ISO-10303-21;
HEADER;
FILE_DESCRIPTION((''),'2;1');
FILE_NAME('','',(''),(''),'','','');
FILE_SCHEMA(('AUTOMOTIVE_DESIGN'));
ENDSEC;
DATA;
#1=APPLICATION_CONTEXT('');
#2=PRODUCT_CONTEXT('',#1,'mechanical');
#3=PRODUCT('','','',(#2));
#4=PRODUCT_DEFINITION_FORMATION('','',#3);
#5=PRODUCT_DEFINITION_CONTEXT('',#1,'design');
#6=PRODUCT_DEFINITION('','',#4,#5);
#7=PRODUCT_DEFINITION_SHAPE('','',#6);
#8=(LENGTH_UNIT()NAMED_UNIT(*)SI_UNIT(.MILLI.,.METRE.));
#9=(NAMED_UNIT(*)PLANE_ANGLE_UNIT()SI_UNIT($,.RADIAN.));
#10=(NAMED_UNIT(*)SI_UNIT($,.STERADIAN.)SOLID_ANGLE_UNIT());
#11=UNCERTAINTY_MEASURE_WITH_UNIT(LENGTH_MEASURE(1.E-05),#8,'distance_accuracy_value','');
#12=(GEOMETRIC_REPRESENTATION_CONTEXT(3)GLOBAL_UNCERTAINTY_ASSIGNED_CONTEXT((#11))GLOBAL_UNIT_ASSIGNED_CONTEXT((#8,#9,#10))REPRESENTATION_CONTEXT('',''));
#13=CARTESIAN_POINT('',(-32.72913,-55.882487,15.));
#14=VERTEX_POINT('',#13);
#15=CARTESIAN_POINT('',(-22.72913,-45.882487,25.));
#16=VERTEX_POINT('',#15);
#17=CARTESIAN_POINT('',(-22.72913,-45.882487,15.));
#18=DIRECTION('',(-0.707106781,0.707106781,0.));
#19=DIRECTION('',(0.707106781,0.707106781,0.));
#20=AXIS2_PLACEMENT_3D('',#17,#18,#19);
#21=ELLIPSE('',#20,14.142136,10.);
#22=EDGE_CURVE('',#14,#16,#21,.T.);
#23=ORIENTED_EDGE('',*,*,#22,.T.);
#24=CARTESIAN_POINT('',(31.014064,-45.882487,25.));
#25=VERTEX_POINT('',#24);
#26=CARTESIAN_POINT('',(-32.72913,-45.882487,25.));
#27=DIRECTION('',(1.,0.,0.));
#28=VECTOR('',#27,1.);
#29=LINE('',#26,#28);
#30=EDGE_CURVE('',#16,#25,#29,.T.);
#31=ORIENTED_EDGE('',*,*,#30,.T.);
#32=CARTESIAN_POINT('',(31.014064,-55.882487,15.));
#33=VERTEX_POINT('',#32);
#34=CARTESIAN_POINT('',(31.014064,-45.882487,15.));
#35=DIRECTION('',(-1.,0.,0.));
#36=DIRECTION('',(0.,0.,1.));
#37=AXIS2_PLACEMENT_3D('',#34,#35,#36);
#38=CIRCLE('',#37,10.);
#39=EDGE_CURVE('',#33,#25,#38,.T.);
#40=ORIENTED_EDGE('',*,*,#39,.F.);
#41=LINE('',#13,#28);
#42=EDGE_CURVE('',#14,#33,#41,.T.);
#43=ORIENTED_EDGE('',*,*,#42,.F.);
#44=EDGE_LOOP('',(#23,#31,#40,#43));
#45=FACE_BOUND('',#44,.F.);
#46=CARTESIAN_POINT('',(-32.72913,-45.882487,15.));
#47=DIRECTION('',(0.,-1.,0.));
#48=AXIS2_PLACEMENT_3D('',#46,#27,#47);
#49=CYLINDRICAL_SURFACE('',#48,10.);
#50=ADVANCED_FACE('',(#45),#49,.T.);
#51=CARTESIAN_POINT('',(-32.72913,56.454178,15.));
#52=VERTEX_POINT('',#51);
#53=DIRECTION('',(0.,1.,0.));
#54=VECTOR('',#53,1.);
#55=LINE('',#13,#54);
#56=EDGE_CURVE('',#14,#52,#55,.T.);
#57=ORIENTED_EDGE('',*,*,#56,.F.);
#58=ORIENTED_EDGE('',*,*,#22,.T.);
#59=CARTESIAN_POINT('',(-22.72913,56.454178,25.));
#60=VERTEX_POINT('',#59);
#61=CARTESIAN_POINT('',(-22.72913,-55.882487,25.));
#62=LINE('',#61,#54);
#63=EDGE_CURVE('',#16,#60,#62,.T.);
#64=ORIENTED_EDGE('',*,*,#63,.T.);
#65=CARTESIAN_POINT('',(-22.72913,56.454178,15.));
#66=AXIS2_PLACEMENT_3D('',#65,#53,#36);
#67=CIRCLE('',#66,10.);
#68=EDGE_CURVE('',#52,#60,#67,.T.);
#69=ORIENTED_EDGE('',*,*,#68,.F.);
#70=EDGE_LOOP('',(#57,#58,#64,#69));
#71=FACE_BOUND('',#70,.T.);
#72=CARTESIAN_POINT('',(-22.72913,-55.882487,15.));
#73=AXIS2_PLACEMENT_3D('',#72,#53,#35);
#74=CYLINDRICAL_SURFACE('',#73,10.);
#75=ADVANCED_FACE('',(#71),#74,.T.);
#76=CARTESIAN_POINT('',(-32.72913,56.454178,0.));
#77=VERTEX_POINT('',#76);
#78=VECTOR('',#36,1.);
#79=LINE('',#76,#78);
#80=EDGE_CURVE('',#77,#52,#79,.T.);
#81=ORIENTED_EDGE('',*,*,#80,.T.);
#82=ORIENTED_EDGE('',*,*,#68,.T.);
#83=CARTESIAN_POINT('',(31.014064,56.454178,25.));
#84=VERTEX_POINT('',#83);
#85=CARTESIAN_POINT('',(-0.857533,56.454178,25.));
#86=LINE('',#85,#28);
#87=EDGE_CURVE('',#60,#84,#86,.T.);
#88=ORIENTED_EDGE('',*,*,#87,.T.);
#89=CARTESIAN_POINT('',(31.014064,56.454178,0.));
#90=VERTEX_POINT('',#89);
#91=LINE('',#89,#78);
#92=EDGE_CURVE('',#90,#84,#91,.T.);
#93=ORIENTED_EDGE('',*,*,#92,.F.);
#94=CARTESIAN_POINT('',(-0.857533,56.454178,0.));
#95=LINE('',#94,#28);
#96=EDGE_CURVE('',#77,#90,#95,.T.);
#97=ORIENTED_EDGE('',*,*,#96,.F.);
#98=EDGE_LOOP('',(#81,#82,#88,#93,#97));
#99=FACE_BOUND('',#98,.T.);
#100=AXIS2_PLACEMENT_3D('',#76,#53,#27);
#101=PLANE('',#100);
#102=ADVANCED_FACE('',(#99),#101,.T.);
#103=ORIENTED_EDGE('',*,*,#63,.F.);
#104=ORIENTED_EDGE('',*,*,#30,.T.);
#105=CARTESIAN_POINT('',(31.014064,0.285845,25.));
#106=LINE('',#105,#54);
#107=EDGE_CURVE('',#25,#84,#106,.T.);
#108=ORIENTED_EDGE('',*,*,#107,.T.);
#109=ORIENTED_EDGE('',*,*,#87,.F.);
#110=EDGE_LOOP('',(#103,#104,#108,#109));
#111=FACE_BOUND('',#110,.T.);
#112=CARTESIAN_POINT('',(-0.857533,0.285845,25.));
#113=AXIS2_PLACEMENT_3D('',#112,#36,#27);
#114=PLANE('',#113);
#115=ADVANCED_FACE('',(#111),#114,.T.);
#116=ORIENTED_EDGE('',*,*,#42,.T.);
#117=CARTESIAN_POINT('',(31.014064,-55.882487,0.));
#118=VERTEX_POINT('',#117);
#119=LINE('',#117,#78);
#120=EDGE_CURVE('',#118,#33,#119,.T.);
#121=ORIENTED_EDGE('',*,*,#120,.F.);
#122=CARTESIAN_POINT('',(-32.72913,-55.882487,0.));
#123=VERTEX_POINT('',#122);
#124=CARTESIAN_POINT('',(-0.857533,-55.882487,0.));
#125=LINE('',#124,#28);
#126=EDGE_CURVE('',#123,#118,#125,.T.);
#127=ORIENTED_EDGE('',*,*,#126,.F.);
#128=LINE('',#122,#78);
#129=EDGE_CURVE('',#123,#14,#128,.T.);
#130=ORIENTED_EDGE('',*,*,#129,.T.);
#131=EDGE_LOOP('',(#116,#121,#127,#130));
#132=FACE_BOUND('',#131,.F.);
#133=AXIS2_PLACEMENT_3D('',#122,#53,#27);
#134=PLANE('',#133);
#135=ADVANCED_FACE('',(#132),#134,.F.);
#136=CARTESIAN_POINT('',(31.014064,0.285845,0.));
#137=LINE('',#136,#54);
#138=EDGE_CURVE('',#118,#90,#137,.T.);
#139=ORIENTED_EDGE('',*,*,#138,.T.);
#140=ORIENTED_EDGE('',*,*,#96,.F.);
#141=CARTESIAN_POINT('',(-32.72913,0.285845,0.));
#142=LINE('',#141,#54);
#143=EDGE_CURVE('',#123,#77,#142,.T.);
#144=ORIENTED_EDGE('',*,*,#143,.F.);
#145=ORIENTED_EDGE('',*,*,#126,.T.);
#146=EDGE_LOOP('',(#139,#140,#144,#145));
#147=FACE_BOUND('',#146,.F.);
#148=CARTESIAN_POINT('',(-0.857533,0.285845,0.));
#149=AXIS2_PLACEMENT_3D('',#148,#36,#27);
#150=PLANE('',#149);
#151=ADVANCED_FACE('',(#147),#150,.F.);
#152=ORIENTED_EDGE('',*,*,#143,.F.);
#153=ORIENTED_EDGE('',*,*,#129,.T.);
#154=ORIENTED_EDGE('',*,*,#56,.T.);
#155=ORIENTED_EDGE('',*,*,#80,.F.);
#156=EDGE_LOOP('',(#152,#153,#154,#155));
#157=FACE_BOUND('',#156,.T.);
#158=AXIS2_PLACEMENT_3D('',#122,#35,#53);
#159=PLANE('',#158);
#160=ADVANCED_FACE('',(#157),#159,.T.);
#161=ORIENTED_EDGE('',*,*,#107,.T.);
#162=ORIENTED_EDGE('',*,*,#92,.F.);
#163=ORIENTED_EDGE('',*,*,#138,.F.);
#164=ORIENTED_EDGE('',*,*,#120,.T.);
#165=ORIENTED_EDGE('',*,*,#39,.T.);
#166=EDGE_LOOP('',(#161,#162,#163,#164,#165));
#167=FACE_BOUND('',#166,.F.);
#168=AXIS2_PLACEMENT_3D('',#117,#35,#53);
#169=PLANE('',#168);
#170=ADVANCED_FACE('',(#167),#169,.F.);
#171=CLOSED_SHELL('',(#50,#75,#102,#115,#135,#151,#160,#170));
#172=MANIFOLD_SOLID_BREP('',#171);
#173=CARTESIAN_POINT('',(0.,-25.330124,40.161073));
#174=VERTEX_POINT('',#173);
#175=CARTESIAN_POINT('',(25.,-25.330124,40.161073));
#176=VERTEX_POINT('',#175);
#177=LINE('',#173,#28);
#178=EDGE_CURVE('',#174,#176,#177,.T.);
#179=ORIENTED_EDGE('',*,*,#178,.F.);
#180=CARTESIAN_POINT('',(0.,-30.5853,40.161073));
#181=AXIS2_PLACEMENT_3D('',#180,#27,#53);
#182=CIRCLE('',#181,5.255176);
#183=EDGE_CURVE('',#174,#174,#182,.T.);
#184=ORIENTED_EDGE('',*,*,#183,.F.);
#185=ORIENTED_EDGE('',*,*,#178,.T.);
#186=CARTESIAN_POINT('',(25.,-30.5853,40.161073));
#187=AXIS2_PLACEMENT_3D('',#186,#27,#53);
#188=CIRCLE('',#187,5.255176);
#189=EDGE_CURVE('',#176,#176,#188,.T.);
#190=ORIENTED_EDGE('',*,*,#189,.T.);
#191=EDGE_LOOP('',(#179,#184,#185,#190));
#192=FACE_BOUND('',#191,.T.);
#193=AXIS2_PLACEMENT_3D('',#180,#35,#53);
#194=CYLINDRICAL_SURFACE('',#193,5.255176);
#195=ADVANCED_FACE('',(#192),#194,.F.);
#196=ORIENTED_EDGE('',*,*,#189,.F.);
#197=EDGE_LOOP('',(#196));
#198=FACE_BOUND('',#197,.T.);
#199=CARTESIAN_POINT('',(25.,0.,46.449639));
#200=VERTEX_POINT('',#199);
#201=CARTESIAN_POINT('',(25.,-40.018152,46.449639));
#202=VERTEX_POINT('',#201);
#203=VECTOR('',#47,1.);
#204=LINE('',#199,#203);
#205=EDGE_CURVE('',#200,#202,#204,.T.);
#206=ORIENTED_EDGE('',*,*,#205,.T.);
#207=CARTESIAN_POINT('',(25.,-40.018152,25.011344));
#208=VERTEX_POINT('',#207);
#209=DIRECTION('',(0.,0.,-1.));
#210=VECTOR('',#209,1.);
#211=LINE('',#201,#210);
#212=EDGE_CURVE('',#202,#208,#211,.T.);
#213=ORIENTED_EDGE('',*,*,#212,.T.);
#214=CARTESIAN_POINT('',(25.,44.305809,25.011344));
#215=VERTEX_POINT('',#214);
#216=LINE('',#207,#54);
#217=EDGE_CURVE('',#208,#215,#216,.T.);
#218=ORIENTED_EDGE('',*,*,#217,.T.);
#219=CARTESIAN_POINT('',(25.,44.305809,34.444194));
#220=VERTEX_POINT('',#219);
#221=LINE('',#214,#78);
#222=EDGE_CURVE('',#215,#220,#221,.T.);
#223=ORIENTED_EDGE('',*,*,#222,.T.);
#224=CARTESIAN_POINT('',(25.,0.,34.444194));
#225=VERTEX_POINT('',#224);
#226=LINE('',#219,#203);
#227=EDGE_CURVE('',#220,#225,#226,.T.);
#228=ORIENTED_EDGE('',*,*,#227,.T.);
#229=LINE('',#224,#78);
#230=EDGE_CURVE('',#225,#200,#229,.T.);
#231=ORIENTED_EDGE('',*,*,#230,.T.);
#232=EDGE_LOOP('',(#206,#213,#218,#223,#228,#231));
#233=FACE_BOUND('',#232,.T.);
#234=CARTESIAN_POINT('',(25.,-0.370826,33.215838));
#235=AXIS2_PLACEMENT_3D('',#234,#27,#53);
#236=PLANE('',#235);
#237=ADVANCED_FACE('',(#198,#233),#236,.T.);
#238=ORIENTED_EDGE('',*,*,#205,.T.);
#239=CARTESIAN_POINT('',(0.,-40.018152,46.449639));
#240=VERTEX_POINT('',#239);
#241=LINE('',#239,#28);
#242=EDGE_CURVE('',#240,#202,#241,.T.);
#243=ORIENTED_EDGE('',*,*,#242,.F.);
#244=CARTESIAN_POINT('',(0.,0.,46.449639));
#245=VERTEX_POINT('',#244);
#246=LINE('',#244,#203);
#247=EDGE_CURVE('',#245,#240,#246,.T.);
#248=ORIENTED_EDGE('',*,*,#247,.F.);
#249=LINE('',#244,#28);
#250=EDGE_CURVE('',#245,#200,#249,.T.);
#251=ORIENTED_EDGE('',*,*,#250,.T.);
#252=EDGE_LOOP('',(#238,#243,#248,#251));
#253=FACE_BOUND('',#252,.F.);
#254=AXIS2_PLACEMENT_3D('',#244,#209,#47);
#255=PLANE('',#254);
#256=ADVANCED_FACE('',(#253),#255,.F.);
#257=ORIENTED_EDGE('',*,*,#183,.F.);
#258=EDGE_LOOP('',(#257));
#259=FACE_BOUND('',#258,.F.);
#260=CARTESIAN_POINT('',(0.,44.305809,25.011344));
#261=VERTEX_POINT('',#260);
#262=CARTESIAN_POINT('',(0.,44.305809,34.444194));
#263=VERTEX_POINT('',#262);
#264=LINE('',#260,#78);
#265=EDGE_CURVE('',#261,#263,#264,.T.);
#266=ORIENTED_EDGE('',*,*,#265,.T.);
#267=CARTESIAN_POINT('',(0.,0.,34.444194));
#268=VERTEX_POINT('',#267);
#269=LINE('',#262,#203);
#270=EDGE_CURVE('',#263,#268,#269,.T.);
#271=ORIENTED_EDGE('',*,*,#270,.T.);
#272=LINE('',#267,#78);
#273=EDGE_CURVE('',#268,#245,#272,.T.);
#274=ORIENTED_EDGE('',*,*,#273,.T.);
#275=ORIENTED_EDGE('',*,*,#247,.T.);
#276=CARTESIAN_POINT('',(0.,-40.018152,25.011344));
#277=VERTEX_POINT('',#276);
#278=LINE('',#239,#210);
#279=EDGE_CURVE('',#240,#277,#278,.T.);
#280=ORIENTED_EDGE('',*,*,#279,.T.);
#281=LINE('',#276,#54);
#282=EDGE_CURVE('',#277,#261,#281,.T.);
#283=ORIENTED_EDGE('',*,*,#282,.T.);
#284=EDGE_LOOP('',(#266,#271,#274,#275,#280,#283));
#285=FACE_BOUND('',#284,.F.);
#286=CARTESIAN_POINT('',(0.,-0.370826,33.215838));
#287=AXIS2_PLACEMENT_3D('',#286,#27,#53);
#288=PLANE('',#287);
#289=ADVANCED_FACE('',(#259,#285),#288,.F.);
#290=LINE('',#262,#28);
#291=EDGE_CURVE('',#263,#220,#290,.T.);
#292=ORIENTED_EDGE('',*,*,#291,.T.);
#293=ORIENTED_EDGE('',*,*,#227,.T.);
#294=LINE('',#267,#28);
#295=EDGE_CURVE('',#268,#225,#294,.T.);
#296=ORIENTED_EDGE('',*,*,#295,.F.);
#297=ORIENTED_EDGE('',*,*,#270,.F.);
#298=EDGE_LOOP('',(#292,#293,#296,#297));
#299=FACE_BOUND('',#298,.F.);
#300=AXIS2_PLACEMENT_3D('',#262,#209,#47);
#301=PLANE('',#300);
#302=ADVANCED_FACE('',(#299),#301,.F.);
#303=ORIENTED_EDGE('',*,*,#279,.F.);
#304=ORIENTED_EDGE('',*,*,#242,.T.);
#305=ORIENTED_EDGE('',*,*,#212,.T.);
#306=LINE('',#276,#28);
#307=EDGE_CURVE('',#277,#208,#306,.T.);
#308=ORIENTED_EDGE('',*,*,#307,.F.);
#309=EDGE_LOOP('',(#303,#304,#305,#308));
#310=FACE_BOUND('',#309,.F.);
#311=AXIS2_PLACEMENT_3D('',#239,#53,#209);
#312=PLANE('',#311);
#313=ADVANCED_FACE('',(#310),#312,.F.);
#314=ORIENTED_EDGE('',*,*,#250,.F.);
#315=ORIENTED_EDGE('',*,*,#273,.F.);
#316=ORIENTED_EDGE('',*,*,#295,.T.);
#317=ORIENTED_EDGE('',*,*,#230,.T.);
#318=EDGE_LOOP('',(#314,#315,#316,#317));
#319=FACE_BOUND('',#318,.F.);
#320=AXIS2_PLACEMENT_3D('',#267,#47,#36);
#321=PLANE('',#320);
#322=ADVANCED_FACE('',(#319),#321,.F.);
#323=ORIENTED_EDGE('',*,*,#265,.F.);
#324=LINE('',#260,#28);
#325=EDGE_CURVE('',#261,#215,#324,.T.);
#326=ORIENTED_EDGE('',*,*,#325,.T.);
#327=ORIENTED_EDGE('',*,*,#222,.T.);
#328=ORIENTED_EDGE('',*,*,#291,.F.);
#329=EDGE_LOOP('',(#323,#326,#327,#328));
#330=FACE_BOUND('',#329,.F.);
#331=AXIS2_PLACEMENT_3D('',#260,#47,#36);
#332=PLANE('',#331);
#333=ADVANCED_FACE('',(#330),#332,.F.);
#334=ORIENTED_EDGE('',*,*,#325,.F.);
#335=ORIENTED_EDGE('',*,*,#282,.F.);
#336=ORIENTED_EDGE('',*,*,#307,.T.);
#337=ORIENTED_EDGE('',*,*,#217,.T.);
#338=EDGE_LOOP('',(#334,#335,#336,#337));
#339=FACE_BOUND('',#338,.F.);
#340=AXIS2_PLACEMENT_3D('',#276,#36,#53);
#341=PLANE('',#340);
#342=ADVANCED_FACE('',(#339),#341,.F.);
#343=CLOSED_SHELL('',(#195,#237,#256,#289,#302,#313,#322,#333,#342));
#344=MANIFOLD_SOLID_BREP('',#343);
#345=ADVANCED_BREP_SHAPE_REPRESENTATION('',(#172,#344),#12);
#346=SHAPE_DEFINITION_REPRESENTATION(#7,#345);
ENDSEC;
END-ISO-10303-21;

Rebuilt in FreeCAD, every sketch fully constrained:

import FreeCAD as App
import Part
import Sketcher

V = App.Vector


def edges_at(feature, points):
    """Names of the edges that pass closest to the given points."""
    edges = feature.Shape.Edges
    near = lambda p: min(range(len(edges)), key=lambda i: edges[i].distToShape(Part.Vertex(*p))[0])
    return sorted({f"Edge{near(p) + 1}" for p in points})

doc = App.newDocument("Part")
params = doc.addObject("Spreadsheet::Sheet", "Params")
for row, (alias, value) in enumerate([
    ("pad1_length", "25 mm"),
    ("fillet_radius", "10 mm"),
    ("pad2_length", "25 mm"),
], start=1):
    params.set(f"A{row}", alias)
    params.set(f"B{row}", "=" + value)
    params.setAlias(f"B{row}", alias)

body = doc.addObject("PartDesign::Body", "Body")

# Sketch on XY plane
sketch1 = doc.addObject("Sketcher::SketchObject", "Sketch")
body.addObject(sketch1)
sketch1.AttachmentSupport = (doc.XY_Plane, [""])
sketch1.MapMode = "FlatFace"
sketch1.addGeometry(Part.LineSegment(V(-32.72913, 56.454178, 0), V(-32.72913, -55.882487, 0)), False)
sketch1.addGeometry(Part.LineSegment(V(-32.72913, -55.882487, 0), V(31.014064, -55.882487, 0)), False)
sketch1.addGeometry(Part.LineSegment(V(31.014064, -55.882487, 0), V(31.014064, 56.454178, 0)), False)
sketch1.addGeometry(Part.LineSegment(V(31.014064, 56.454178, 0), V(-32.72913, 56.454178, 0)), False)
sketch1.addConstraint(Sketcher.Constraint("Coincident", 0, 2, 1, 1))
sketch1.addConstraint(Sketcher.Constraint("Coincident", 1, 2, 2, 1))
sketch1.addConstraint(Sketcher.Constraint("Coincident", 2, 2, 3, 1))
sketch1.addConstraint(Sketcher.Constraint("Coincident", 3, 2, 0, 1))
sketch1.addConstraint(Sketcher.Constraint("Vertical", 0))
sketch1.addConstraint(Sketcher.Constraint("Horizontal", 1))
sketch1.addConstraint(Sketcher.Constraint("Vertical", 2))
sketch1.addConstraint(Sketcher.Constraint("Horizontal", 3))
sketch1.addConstraint(Sketcher.Constraint("DistanceX", 1, 1, 1, 2, 63.743195))
sketch1.addConstraint(Sketcher.Constraint("DistanceY", 0, 2, 0, 1, 112.336665))
sketch1.addConstraint(Sketcher.Constraint("DistanceX", 0, 2, -1, 1, 32.72913))
sketch1.addConstraint(Sketcher.Constraint("DistanceY", 0, 2, -1, 1, 55.882487))
pad1 = doc.addObject("PartDesign::Pad", "Pad")
body.addObject(pad1)
pad1.Profile = sketch1
pad1.setExpression("Length", "Params.pad1_length")
doc.recompute()

fillet = doc.addObject("PartDesign::Fillet", "Fillet")
body.addObject(fillet)
fillet.Base = (pad1, edges_at(pad1, [(-32.729, 0.286, 25), (-0.858, -55.882, 25)]))
fillet.setExpression("Radius", "Params.fillet_radius")
body2 = doc.addObject("PartDesign::Body", "Body001")

# Sketch on YZ plane
sketch2 = doc.addObject("Sketcher::SketchObject", "Sketch001")
body2.addObject(sketch2)
sketch2.AttachmentSupport = (doc.getObject("YZ_Plane001"), [""])
sketch2.MapMode = "FlatFace"
sketch2.addGeometry(Part.LineSegment(V(-40.018152, 46.449639, 0), V(-40.018152, 25.011344, 0)), False)
sketch2.addGeometry(Part.LineSegment(V(-40.018152, 25.011344, 0), V(44.305809, 25.011344, 0)), False)
sketch2.addGeometry(Part.LineSegment(V(44.305809, 25.011344, 0), V(44.305809, 34.444194, 0)), False)
sketch2.addGeometry(Part.LineSegment(V(44.305809, 34.444194, 0), V(0, 34.444194, 0)), False)
sketch2.addGeometry(Part.LineSegment(V(0, 34.444194, 0), V(0, 46.449639, 0)), False)
sketch2.addGeometry(Part.LineSegment(V(0, 46.449639, 0), V(-40.018152, 46.449639, 0)), False)
sketch2.addGeometry(Part.Circle(V(-30.5853, 40.161073, 0), V(0, 0, 1), 5.255176), False)
sketch2.addConstraint(Sketcher.Constraint("Coincident", 0, 2, 1, 1))
sketch2.addConstraint(Sketcher.Constraint("Coincident", 1, 2, 2, 1))
sketch2.addConstraint(Sketcher.Constraint("Coincident", 2, 2, 3, 1))
sketch2.addConstraint(Sketcher.Constraint("Coincident", 3, 2, 4, 1))
sketch2.addConstraint(Sketcher.Constraint("Coincident", 4, 2, 5, 1))
sketch2.addConstraint(Sketcher.Constraint("Coincident", 5, 2, 0, 1))
sketch2.addConstraint(Sketcher.Constraint("Vertical", 0))
sketch2.addConstraint(Sketcher.Constraint("Horizontal", 1))
sketch2.addConstraint(Sketcher.Constraint("Vertical", 2))
sketch2.addConstraint(Sketcher.Constraint("Horizontal", 3))
sketch2.addConstraint(Sketcher.Constraint("Vertical", 4))
sketch2.addConstraint(Sketcher.Constraint("Horizontal", 5))
sketch2.addConstraint(Sketcher.Constraint("PointOnObject", 3, 2, -2))
sketch2.addConstraint(Sketcher.Constraint("Diameter", 6, 10.510352))
sketch2.addConstraint(Sketcher.Constraint("DistanceX", 1, 1, 1, 2, 84.323961))
sketch2.addConstraint(Sketcher.Constraint("DistanceX", 3, 2, 3, 1, 44.305809))
sketch2.addConstraint(Sketcher.Constraint("DistanceY", 2, 1, 2, 2, 9.43285))
sketch2.addConstraint(Sketcher.Constraint("DistanceX", 6, 3, -1, 1, 30.5853))
sketch2.addConstraint(Sketcher.Constraint("DistanceY", 0, 2, 0, 1, 21.438295))
sketch2.addConstraint(Sketcher.Constraint("DistanceY", -1, 1, 4, 2, 46.449639))
sketch2.addConstraint(Sketcher.Constraint("DistanceY", 0, 2, 6, 3, 15.149729))
pad2 = doc.addObject("PartDesign::Pad", "Pad001")
body2.addObject(pad2)
pad2.Profile = sketch2
pad2.setExpression("Length", "Params.pad2_length")

doc.recompute()
